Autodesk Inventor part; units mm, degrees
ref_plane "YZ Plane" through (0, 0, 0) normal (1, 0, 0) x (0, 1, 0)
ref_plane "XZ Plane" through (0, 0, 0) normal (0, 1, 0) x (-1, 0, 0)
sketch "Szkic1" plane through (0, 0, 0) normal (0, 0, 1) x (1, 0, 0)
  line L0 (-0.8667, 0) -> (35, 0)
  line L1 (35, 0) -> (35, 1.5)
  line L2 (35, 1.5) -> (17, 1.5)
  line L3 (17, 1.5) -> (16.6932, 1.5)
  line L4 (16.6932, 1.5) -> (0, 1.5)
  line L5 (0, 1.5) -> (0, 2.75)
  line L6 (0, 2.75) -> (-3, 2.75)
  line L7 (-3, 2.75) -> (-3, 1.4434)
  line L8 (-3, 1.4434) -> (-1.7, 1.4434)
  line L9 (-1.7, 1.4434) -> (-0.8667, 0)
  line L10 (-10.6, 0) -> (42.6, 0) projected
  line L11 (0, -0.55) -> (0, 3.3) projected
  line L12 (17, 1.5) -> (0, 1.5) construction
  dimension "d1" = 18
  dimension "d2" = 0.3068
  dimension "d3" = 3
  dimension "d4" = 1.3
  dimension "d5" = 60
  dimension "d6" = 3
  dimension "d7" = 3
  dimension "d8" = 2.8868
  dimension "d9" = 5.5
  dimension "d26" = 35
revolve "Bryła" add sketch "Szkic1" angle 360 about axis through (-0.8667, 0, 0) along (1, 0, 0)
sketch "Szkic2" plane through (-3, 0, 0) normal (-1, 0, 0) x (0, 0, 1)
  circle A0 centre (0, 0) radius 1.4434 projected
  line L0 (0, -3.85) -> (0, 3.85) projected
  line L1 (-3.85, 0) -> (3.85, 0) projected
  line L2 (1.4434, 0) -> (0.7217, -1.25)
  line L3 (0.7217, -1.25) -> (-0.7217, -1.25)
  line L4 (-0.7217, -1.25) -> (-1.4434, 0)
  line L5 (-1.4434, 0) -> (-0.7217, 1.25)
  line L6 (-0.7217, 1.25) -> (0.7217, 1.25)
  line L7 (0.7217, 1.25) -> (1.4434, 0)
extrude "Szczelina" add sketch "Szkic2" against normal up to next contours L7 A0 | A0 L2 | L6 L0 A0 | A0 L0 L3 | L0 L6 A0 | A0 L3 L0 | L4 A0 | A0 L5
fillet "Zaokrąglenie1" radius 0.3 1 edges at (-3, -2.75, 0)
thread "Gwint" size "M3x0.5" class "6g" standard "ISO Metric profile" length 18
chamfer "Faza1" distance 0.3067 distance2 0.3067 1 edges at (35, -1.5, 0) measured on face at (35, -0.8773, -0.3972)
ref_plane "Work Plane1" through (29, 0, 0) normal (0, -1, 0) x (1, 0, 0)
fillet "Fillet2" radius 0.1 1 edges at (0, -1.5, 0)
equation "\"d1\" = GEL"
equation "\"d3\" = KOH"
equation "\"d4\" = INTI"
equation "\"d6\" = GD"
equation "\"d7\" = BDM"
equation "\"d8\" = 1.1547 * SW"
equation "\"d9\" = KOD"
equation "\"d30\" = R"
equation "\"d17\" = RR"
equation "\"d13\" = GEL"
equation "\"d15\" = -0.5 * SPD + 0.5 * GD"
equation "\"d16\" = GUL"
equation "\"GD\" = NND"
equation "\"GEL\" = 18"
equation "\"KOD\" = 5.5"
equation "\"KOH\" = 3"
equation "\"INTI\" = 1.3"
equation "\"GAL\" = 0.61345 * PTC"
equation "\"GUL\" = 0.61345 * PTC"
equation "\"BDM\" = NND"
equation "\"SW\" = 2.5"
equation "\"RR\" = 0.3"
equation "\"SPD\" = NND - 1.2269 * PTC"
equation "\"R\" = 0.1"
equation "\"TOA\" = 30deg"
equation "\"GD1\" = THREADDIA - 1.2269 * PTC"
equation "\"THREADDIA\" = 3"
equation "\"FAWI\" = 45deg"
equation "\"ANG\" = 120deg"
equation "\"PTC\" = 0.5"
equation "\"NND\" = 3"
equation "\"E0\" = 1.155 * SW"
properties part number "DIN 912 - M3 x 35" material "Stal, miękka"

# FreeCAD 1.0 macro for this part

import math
import FreeCAD as App
import Part
import Sketcher
from FreeCAD import Vector
Q = App.Units.Quantity


def edges_at(feature, points):
    """Names of the edges that pass closest to the given points."""
    edges = feature.Shape.Edges
    near = lambda p: min(range(len(edges)), key=lambda i: edges[i].distToShape(Part.Vertex(*p))[0])
    return sorted({f"Edge{near(p) + 1}" for p in points})

doc = App.newDocument("Part")
params = doc.addObject("Spreadsheet::Sheet", "Params")
for row, (alias, value) in enumerate([
    ("sketch1_width", "35 mm"),
    ("sketch1_width2", "3 mm"),
    ("sketch1_width3", "1.3 mm"),
    ("sketch1_height", "1.5 mm"),
    ("sketch1_height2", "1.25 mm"),
    ("revolution_angle", "360 deg"),
    ("fillet_radius", "0.3 mm"),
    ("chamfer_size", "0.3067 mm"),
    ("chamfer_size2", "0.3067 mm"),
    ("fillet2_radius", "0.1 mm"),
], start=1):
    params.set(f"A{row}", alias)
    params.set(f"B{row}", "=" + value)
    params.setAlias(f"B{row}", alias)

body = doc.addObject("PartDesign::Body", "Body")

# Sketch on XY plane
sketch1 = body.newObject("Sketcher::SketchObject", "Sketch")
sketch1.AttachmentSupport = (doc.getObject("XY_Plane"), [""])
sketch1.MapMode = "FlatFace"
sketch1.addGeometry(Part.LineSegment(Vector(-1.7, 1.4434, 0), Vector(-0.8667, 0, 0)), False)
sketch1.addGeometry(Part.LineSegment(Vector(-0.8667, 0, 0), Vector(35, 0, 0)), False)
sketch1.addGeometry(Part.LineSegment(Vector(35, 0, 0), Vector(35, 1.5, 0)), False)
sketch1.addGeometry(Part.LineSegment(Vector(35, 1.5, 0), Vector(0, 1.5, 0)), False)
sketch1.addGeometry(Part.LineSegment(Vector(0, 1.5, 0), Vector(0, 2.75, 0)), False)
sketch1.addGeometry(Part.LineSegment(Vector(0, 2.75, 0), Vector(-3, 2.75, 0)), False)
sketch1.addGeometry(Part.LineSegment(Vector(-3, 2.75, 0), Vector(-3, 1.4434, 0)), False)
sketch1.addGeometry(Part.LineSegment(Vector(-3, 1.4434, 0), Vector(-1.7, 1.4434, 0)), False)
sketch1.addConstraint(Sketcher.Constraint("Coincident", 0, 2, 1, 1))
sketch1.addConstraint(Sketcher.Constraint("Coincident", 1, 2, 2, 1))
sketch1.addConstraint(Sketcher.Constraint("Coincident", 2, 2, 3, 1))
sketch1.addConstraint(Sketcher.Constraint("Coincident", 3, 2, 4, 1))
sketch1.addConstraint(Sketcher.Constraint("Coincident", 4, 2, 5, 1))
sketch1.addConstraint(Sketcher.Constraint("Coincident", 5, 2, 6, 1))
sketch1.addConstraint(Sketcher.Constraint("Coincident", 6, 2, 7, 1))
sketch1.addConstraint(Sketcher.Constraint("Coincident", 7, 2, 0, 1))
sketch1.addConstraint(Sketcher.Constraint("Horizontal", 1))
sketch1.addConstraint(Sketcher.Constraint("Vertical", 2))
sketch1.addConstraint(Sketcher.Constraint("Horizontal", 3))
sketch1.addConstraint(Sketcher.Constraint("Vertical", 4))
sketch1.addConstraint(Sketcher.Constraint("Horizontal", 5))
sketch1.addConstraint(Sketcher.Constraint("Vertical", 6))
sketch1.addConstraint(Sketcher.Constraint("Horizontal", 7))
sketch1.addConstraint(Sketcher.Constraint("PointOnObject", 0, 2, -1))
sketch1.addConstraint(Sketcher.Constraint("PointOnObject", 3, 2, -2))
sketch1.addConstraint(Sketcher.Constraint("DistanceX", 3, 2, 3, 1, Q("35 mm")))
sketch1.addConstraint(Sketcher.Constraint("DistanceX", 5, 2, 5, 1, Q("3 mm")))
sketch1.addConstraint(Sketcher.Constraint("DistanceX", 7, 1, 7, 2, Q("1.3 mm")))
sketch1.addConstraint(Sketcher.Constraint("DistanceY", 2, 1, 2, 2, Q("1.5 mm")))
sketch1.addConstraint(Sketcher.Constraint("DistanceY", 4, 1, 4, 2, Q("1.25 mm")))
sketch1.addConstraint(Sketcher.Constraint("DistanceX", 1, 1, 1, 2, Q("35.8667 mm")))
sketch1.addConstraint(Sketcher.Constraint("DistanceY", 6, 2, 6, 1, Q("1.3066 mm")))
sketch1.setExpression("Constraints[17]", "Params.sketch1_width")
sketch1.setExpression("Constraints[18]", "Params.sketch1_width2")
sketch1.setExpression("Constraints[19]", "Params.sketch1_width3")
sketch1.setExpression("Constraints[20]", "Params.sketch1_height")
sketch1.setExpression("Constraints[21]", "Params.sketch1_height2")
revolution = body.newObject("PartDesign::Revolution", "Revolution")
revolution.Profile = sketch1
revolution.ReferenceAxis = (sketch1, ["H_Axis"])
revolution.setExpression("Angle", "Params.revolution_angle")

# Sketch on YZ plane
sketch2 = body.newObject("Sketcher::SketchObject", "Sketch001")
sketch2.AttachmentSupport = (doc.getObject("YZ_Plane"), [""])
sketch2.MapMode = "FlatFace"
sketch2.AttachmentOffset = App.Placement(Vector(0, 0, -3), App.Rotation())
sketch2.addGeometry(Part.LineSegment(Vector(1.25, 0.7217, 0), Vector(0, 1.4434, 0)), False)
sketch2.addGeometry(Part.ArcOfCircle(Part.Circle(Vector(0, 0, 0), Vector(0, 0, 1), 1.4434), math.radians(30.000418), math.radians(90)), False)
sketch2.addGeometry(Part.ArcOfCircle(Part.Circle(Vector(0, 0, 0), Vector(0, 0, 1), 1.4434), math.radians(90), math.radians(149.999582)), False)
sketch2.addGeometry(Part.LineSegment(Vector(0, 1.4434, 0), Vector(-1.25, 0.7217, 0)), False)
sketch2.addGeometry(Part.ArcOfCircle(Part.Circle(Vector(0, 0, 0), Vector(0, 0, 1), 1.4434), math.radians(-30.000418), math.radians(30.000418)), False)
sketch2.addGeometry(Part.LineSegment(Vector(1.25, 0.7217, 0), Vector(1.25, -0.7217, 0)), False)
sketch2.addGeometry(Part.LineSegment(Vector(-1.25, 0.7217, 0), Vector(-1.25, -0.7217, 0)), False)
sketch2.addGeometry(Part.ArcOfCircle(Part.Circle(Vector(0, 0, 0), Vector(0, 0, 1), 1.4434), math.radians(149.999582), math.radians(210.000418)), False)
sketch2.addGeometry(Part.LineSegment(Vector(-1.25, -0.7217, 0), Vector(0, -1.4434, 0)), False)
sketch2.addGeometry(Part.ArcOfCircle(Part.Circle(Vector(0, 0, 0), Vector(0, 0, 1), 1.4434), math.radians(-149.999582), math.radians(-90)), False)
sketch2.addGeometry(Part.ArcOfCircle(Part.Circle(Vector(0, 0, 0), Vector(0, 0, 1), 1.4434), math.radians(-90), math.radians(-30.000418)), False)
sketch2.addGeometry(Part.LineSegment(Vector(0, -1.4434, 0), Vector(1.25, -0.7217, 0)), False)
sketch2.addConstraint(Sketcher.Constraint("Coincident", 0, 1, 1, 1))
sketch2.addConstraint(Sketcher.Constraint("Coincident", 1, 2, 0, 2))
sketch2.addConstraint(Sketcher.Constraint("Coincident", 2, 1, 3, 1))
sketch2.addConstraint(Sketcher.Constraint("Coincident", 3, 2, 2, 2))
sketch2.addConstraint(Sketcher.Constraint("Coincident", 4, 1, 5, 2))
sketch2.addConstraint(Sketcher.Constraint("Coincident", 5, 1, 4, 2))
sketch2.addConstraint(Sketcher.Constraint("Coincident", 6, 1, 7, 1))
sketch2.addConstraint(Sketcher.Constraint("Coincident", 7, 2, 6, 2))
sketch2.addConstraint(Sketcher.Constraint("Coincident", 8, 1, 9, 1))
sketch2.addConstraint(Sketcher.Constraint("Coincident", 9, 2, 8, 2))
sketch2.addConstraint(Sketcher.Constraint("Coincident", 10, 1, 11, 1))
sketch2.addConstraint(Sketcher.Constraint("Coincident", 11, 2, 10, 2))
sketch2.addConstraint(Sketcher.Constraint("Vertical", 5))
sketch2.addConstraint(Sketcher.Constraint("Vertical", 6))
sketch2.addConstraint(Sketcher.Constraint("Coincident", 1, 3, -1, 1))
sketch2.addConstraint(Sketcher.Constraint("Coincident", 2, 3, -1, 1))
sketch2.addConstraint(Sketcher.Constraint("Coincident", 4, 3, -1, 1))
sketch2.addConstraint(Sketcher.Constraint("Coincident", 7, 3, -1, 1))
sketch2.addConstraint(Sketcher.Constraint("Coincident", 9, 3, -1, 1))
sketch2.addConstraint(Sketcher.Constraint("Coincident", 10, 3, -1, 1))
sketch2.addConstraint(Sketcher.Constraint("Coincident", 2, 1, 1, 2))
sketch2.addConstraint(Sketcher.Constraint("Coincident", 5, 1, 0, 1))
sketch2.addConstraint(Sketcher.Constraint("Coincident", 6, 1, 3, 2))
sketch2.addConstraint(Sketcher.Constraint("Coincident", 8, 1, 7, 2))
sketch2.addConstraint(Sketcher.Constraint("Coincident", 10, 1, 9, 2))
sketch2.addConstraint(Sketcher.Constraint("PointOnObject", 1, 2, -2))
sketch2.addConstraint(Sketcher.Constraint("PointOnObject", 9, 2, -2))
sketch2.addConstraint(Sketcher.Constraint("Parallel", 0, 8))
sketch2.addConstraint(Sketcher.Constraint("Parallel", 3, 11))
sketch2.addConstraint(Sketcher.Constraint("Angle", 0, Q("149.9996 deg")))
sketch2.addConstraint(Sketcher.Constraint("Radius", 1, Q("1.4434 mm")))
pad1 = body.newObject("PartDesign::Pad", "Pad")
pad1.Profile = sketch2
pad1.Type = "UpToFirst"
doc.recompute()

fillet = body.newObject("PartDesign::Fillet", "Fillet")
fillet.Base = (pad1, edges_at(pad1, [(-3, -2.75, 0)]))
fillet.setExpression("Radius", "Params.fillet_radius")
doc.recompute()

chamfer = body.newObject("PartDesign::Chamfer", "Chamfer")
chamfer.Base = (fillet, edges_at(fillet, [(35, -1.5, 0)]))
chamfer.ChamferType = "Two distances"
chamfer.setExpression("Size", "Params.chamfer_size")
chamfer.setExpression("Size2", "Params.chamfer_size2")
doc.recompute()

fillet2 = body.newObject("PartDesign::Fillet", "Fillet001")
fillet2.Base = (chamfer, edges_at(chamfer, [(0, -1.5, 0)]))
fillet2.setExpression("Radius", "Params.fillet2_radius")

doc.recompute()
